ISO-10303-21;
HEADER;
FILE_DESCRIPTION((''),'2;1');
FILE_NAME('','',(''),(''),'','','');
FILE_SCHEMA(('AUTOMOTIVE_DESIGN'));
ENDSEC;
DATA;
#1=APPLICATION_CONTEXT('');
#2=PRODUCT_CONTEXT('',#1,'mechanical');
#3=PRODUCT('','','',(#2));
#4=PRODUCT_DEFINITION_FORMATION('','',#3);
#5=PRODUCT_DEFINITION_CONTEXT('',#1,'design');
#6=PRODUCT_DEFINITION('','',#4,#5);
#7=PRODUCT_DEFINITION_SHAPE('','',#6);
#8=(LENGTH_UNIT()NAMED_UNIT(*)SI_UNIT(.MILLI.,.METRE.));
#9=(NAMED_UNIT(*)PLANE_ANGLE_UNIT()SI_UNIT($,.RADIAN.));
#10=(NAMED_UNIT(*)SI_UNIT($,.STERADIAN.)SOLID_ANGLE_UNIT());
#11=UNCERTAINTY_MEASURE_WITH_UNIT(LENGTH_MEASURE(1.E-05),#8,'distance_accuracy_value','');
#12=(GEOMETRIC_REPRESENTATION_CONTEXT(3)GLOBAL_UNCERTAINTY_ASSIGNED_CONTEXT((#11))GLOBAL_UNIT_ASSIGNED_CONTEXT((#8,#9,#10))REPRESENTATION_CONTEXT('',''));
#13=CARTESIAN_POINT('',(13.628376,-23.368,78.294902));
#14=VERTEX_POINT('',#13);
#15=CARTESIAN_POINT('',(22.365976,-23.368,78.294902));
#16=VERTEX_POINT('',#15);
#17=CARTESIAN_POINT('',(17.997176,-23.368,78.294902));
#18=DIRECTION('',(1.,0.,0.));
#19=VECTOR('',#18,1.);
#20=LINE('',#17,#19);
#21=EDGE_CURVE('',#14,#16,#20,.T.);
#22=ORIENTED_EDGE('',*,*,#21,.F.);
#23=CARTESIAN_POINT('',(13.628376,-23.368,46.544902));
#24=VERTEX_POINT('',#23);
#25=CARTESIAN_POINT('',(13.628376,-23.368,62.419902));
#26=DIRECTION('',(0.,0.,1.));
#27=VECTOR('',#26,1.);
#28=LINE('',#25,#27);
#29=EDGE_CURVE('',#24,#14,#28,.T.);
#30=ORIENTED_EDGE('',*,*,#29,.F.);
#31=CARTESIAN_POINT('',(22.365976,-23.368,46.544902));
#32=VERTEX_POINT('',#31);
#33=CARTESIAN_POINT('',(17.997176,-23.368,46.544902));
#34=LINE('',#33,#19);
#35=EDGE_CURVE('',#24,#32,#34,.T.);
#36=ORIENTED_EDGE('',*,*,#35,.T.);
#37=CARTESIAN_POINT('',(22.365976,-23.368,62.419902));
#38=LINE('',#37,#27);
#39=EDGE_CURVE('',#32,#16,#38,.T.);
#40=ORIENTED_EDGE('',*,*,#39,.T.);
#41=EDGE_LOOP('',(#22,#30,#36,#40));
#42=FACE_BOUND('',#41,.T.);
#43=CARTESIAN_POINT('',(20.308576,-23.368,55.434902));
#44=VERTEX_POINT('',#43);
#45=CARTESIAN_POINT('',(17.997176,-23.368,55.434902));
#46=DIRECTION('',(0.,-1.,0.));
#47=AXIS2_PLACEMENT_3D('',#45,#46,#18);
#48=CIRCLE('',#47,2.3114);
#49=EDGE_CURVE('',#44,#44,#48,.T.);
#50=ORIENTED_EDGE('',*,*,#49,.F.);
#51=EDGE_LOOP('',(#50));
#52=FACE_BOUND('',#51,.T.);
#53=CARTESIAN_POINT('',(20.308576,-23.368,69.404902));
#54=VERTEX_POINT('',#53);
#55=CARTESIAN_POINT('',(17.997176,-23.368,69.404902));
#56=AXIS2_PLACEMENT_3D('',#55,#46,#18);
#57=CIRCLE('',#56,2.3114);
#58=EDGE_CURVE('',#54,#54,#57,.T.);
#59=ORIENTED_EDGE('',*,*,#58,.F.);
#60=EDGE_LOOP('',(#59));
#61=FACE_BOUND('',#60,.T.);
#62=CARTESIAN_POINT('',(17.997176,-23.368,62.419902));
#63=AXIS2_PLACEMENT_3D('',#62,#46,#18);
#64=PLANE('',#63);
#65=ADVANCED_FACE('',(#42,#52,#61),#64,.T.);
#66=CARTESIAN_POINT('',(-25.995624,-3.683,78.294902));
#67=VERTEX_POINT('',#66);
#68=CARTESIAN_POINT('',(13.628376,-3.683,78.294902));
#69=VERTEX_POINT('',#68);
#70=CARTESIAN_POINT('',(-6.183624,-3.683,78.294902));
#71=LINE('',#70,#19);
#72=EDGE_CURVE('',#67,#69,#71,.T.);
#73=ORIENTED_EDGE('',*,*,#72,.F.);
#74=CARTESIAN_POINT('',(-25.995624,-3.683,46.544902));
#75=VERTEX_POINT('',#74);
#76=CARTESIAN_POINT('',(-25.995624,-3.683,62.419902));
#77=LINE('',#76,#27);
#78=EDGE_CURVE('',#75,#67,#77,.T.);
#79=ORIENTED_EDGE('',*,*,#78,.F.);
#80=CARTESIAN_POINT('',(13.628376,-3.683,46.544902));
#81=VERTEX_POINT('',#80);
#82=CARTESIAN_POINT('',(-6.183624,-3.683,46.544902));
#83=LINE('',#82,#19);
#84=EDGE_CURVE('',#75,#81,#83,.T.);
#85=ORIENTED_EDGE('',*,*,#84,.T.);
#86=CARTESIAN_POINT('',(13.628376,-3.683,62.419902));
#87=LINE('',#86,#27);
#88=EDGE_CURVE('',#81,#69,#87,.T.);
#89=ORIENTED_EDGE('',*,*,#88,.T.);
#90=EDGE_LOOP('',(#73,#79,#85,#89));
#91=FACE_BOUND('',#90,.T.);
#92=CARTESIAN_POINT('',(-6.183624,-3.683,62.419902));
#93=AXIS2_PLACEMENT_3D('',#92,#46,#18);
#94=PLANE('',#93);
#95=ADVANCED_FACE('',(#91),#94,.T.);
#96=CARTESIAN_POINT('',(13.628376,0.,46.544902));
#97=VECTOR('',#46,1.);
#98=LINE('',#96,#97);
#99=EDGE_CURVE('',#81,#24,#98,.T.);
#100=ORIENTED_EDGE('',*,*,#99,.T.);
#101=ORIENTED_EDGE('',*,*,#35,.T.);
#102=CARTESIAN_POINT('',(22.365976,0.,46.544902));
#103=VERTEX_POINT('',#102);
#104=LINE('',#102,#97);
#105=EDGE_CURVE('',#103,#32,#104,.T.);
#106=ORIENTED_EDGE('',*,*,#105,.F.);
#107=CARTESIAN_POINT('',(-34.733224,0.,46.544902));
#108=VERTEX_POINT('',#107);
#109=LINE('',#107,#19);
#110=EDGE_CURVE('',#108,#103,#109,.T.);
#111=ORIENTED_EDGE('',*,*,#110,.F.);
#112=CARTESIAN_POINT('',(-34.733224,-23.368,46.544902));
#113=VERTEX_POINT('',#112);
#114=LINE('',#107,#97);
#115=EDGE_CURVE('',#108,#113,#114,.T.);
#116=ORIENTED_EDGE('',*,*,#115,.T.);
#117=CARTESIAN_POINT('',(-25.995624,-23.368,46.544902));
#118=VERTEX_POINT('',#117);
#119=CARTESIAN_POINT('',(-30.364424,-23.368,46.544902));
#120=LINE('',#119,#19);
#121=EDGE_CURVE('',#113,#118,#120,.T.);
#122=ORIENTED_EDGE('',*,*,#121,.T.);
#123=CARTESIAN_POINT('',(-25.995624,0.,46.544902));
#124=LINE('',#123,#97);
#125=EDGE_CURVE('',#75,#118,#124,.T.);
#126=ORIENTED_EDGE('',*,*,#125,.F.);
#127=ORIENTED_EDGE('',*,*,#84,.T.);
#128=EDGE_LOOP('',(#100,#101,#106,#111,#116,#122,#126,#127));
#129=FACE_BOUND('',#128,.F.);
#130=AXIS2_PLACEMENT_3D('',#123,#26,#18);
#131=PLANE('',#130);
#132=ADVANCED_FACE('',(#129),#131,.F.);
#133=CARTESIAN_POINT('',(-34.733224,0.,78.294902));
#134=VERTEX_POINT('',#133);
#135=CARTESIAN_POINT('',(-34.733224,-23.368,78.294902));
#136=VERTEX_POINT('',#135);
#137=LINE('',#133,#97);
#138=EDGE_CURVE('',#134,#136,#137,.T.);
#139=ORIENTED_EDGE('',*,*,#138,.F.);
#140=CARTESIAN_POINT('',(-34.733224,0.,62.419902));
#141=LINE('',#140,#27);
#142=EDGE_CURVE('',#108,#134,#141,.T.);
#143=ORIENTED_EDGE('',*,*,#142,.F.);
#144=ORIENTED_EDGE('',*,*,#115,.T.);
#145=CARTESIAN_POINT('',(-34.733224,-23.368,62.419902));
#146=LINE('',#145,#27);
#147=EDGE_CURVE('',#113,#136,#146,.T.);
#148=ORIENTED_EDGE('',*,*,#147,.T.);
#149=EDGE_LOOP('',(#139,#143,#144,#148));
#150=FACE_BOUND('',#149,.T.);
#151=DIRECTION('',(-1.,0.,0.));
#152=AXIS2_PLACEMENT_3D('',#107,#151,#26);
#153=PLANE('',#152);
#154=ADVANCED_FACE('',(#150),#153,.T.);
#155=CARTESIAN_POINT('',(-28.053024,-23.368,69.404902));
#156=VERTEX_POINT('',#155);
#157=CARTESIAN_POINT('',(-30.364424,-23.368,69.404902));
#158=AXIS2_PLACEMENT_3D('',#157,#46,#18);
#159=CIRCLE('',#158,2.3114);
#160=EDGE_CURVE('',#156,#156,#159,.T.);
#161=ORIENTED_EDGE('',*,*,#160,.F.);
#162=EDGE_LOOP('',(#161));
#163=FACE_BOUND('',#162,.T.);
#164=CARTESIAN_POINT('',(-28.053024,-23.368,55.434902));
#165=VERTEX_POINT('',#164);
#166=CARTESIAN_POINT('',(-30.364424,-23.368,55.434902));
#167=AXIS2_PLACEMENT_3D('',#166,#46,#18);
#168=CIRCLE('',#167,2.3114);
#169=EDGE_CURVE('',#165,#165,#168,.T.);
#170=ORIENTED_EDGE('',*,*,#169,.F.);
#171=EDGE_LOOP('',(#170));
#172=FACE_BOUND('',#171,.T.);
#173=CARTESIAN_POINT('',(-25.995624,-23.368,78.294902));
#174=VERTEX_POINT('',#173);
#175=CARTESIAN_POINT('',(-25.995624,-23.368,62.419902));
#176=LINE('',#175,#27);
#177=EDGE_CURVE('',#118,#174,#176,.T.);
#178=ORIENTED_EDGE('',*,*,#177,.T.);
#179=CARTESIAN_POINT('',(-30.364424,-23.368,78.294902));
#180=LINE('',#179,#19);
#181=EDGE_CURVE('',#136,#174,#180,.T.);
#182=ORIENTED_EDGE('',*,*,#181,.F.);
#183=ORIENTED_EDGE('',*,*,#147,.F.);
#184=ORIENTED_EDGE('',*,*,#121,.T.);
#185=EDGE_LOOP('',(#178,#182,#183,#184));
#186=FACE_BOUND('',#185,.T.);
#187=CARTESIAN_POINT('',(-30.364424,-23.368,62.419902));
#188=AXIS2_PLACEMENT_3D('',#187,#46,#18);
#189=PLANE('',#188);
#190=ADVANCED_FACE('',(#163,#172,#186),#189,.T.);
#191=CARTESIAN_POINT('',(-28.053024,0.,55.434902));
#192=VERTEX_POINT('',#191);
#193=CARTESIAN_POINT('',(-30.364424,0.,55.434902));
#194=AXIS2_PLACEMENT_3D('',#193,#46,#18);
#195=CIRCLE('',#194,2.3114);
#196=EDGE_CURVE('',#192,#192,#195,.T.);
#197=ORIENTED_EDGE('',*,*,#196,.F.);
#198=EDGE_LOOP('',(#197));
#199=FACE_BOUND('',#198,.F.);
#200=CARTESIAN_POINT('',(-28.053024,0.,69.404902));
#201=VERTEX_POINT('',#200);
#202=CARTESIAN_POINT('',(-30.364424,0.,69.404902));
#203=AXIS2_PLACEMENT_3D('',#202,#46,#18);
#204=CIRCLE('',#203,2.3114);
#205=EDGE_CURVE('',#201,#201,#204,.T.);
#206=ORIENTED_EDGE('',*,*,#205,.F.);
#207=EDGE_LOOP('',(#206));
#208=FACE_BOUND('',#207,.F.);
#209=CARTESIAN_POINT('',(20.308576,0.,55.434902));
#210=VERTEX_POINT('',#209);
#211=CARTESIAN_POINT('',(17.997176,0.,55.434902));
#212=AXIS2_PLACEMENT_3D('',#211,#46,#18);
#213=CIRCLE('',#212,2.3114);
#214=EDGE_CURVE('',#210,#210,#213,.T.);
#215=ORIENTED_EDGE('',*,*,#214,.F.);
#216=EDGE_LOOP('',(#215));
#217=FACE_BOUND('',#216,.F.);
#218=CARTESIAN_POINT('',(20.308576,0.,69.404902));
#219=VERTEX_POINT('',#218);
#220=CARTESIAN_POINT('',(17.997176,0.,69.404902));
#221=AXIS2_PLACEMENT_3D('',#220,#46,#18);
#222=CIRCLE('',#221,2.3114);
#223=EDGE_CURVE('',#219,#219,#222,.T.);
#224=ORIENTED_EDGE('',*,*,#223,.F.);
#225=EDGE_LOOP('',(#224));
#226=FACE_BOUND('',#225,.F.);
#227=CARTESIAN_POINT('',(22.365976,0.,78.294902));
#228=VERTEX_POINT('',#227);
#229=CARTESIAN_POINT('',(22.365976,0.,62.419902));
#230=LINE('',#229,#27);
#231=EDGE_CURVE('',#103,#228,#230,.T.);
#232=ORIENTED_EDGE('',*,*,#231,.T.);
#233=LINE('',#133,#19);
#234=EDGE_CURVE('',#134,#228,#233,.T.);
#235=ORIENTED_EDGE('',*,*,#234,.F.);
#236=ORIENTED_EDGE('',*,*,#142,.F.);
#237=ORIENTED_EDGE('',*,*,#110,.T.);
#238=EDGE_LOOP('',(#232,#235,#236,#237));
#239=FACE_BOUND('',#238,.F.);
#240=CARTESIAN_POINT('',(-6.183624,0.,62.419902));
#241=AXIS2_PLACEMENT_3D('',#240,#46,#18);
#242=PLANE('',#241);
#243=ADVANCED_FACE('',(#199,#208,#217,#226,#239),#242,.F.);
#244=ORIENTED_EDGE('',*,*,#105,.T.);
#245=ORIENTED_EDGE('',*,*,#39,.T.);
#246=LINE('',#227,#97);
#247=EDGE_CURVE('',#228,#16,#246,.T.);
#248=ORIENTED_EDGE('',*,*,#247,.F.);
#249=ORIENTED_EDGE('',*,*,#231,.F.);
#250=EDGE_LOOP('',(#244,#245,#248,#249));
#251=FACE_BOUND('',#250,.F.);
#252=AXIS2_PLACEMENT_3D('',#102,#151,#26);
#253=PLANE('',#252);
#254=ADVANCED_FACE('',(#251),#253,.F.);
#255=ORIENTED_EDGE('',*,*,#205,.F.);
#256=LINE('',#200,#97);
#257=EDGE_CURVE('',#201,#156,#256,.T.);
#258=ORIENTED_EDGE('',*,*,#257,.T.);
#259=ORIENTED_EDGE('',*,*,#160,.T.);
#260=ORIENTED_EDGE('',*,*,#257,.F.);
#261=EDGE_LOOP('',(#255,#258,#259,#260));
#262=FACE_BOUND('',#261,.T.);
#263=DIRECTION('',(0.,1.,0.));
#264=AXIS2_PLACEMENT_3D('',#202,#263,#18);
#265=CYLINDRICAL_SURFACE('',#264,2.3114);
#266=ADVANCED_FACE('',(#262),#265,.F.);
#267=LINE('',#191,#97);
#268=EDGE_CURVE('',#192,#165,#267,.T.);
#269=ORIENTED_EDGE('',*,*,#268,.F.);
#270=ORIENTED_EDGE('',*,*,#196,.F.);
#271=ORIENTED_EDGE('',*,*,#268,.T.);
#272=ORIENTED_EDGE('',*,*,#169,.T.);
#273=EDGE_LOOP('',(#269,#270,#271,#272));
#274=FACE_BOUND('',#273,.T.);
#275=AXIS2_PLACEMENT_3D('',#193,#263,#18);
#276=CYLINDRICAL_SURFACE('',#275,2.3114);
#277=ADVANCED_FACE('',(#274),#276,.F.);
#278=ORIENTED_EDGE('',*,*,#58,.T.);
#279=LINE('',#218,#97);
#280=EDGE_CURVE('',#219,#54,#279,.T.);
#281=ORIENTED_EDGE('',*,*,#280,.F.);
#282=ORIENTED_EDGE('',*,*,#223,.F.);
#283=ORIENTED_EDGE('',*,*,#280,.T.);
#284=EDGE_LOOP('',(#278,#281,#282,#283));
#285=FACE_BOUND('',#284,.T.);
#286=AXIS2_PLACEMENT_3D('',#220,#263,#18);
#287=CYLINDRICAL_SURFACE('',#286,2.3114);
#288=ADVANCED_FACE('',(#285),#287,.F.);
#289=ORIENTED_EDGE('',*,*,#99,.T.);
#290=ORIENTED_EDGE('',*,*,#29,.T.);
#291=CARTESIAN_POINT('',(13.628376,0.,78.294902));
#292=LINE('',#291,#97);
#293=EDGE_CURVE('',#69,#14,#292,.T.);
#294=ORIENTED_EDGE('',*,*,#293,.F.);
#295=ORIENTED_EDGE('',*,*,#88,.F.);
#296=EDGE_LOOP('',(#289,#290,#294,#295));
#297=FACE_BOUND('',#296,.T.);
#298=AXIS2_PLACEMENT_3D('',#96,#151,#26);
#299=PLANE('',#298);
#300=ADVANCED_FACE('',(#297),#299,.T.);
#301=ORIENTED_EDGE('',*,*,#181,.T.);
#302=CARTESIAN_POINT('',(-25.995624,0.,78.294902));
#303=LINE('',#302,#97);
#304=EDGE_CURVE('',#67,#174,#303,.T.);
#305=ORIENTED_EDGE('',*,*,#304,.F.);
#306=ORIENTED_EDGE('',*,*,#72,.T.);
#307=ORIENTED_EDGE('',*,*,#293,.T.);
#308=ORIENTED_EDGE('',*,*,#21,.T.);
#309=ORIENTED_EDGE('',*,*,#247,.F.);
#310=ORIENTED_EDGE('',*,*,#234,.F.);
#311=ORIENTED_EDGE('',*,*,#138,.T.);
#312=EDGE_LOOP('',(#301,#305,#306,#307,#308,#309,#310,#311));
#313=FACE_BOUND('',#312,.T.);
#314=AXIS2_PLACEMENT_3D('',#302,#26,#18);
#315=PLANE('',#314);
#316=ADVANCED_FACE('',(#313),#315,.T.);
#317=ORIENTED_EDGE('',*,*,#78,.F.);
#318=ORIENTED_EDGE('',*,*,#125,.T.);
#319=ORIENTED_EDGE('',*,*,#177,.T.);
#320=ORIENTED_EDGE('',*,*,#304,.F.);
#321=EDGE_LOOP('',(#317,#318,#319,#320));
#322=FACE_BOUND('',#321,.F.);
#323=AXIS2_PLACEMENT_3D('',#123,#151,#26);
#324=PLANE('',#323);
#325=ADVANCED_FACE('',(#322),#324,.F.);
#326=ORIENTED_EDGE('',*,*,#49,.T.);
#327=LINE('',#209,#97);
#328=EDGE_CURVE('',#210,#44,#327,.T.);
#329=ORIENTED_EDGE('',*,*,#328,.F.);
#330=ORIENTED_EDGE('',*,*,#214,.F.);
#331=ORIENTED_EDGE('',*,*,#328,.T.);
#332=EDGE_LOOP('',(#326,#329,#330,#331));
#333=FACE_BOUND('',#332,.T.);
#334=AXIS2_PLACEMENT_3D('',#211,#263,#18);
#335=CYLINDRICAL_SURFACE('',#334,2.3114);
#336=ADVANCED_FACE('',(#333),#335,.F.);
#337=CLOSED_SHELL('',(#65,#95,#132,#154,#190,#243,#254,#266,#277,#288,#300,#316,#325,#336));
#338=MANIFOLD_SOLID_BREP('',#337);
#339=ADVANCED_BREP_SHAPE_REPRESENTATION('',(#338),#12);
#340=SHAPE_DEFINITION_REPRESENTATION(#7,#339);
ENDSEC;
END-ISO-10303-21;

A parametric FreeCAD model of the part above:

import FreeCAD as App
import Part
import Sketcher

V = App.Vector
Q = App.Units.Quantity


def add_polygon(sketch, points):
    """Adds a closed chain of lines whose ends are joined by coincident constraints."""
    first, n = sketch.GeometryCount, len(points)
    for a, b in zip(points, points[1:] + points[:1]):
        sketch.addGeometry(Part.LineSegment(App.Vector(*a, 0), App.Vector(*b, 0)), False)
    for i in range(n):
        sketch.addConstraint(Sketcher.Constraint("Coincident", first + i, 2, first + (i + 1) % n, 1))

doc = App.newDocument("Part")
body = doc.addObject("PartDesign::Body", "Body")
body.AllowCompound = True

# Sketch on XZ plane
sketch1 = doc.addObject("Sketcher::SketchObject", "Sketch")
body.addObject(sketch1)
sketch1.AttachmentSupport = (doc.XZ_Plane, [""])
sketch1.MapMode = "FlatFace"
add_polygon(sketch1, [(-34.733224, 78.294902), (-34.733224, 46.544902), (-25.995624, 46.544902), (-25.995624, 78.294902)])  # lines 0-3
sketch1.addGeometry(Part.Circle(V(-30.364424, 55.434902, 0), V(0, 0, 1), 2.3114), False)  # 4
sketch1.addGeometry(Part.Circle(V(-30.364424, 69.404902, 0), V(0, 0, 1), 2.3114), False)  # 5
add_polygon(sketch1, [(13.628376, 78.294902), (13.628376, 46.544902), (22.365976, 46.544902), (22.365976, 78.294902)])  # lines 6-9
sketch1.addGeometry(Part.Circle(V(17.997176, 55.434902, 0), V(0, 0, 1), 2.3114), False)  # 10
sketch1.addGeometry(Part.Circle(V(17.997176, 69.404902, 0), V(0, 0, 1), 2.3114), False)  # 11
sketch1.addConstraint([
    Sketcher.Constraint("Vertical", 0),
    Sketcher.Constraint("Horizontal", 1),
    Sketcher.Constraint("Vertical", 2),
    Sketcher.Constraint("Horizontal", 3),
    Sketcher.Constraint("Vertical", 6),
    Sketcher.Constraint("Horizontal", 7),
    Sketcher.Constraint("Vertical", 8),
    Sketcher.Constraint("Horizontal", 9),
    Sketcher.Constraint("Equal", 4, 5),
    Sketcher.Constraint("Equal", 5, 10),
    Sketcher.Constraint("Equal", 10, 11),
    Sketcher.Constraint("Horizontal", 4, 3, 10, 3),
    Sketcher.Constraint("Horizontal", 5, 3, 11, 3),
    Sketcher.Constraint("Horizontal", 1, 2, 6, 2),
    Sketcher.Constraint("Horizontal", 3, 2, 8, 2),
    Sketcher.Constraint("Vertical", 4, 3, 5, 3),
    Sketcher.Constraint("Vertical", 10, 3, 11, 3),
    Sketcher.Constraint("Equal", 3, 7),
    Sketcher.Constraint("Diameter", 4, Q("0.182 in")),
    Sketcher.Constraint("DistanceY", 0, 2, 0, 1, Q("1.25 in")),
    Sketcher.Constraint("DistanceY", 0, 2, 5, 3, Q("0.9 in")),
    Sketcher.Constraint("DistanceY", 4, 3, 2, 2, Q("0.9 in")),
    Sketcher.Constraint("DistanceX", 1, 1, 1, 2, Q("0.344 in")),
    Sketcher.Constraint("DistanceX", 1, 2, 6, 2, Q("1.56 in")),
    Sketcher.Constraint("DistanceX", 4, 3, 10, 3, Q("1.904 in")),
    Sketcher.Constraint("DistanceX", 0, 2, 4, 3, Q("0.172 in")),
    Sketcher.Constraint("DistanceY", -1, 1, 2, 2, 78.294902),
    Sketcher.Constraint("DistanceX", 4, 3, -1, 1, 30.364424),
])
pad1 = doc.addObject("PartDesign::Pad", "Pad")
body.addObject(pad1)
pad1.Profile = sketch1
pad1.Length = Q("0.92 in")

# Sketch on XZ plane
sketch2 = doc.addObject("Sketcher::SketchObject", "Sketch001")
body.addObject(sketch2)
sketch2.AttachmentSupport = (doc.XZ_Plane, [""])
sketch2.MapMode = "FlatFace"
add_polygon(sketch2, [(-25.995624, 78.294902), (-25.995624, 46.544902), (13.628376, 46.544902), (13.628376, 78.294902)])  # lines 0-3
sketch2.addConstraint([
    Sketcher.Constraint("Vertical", 0),
    Sketcher.Constraint("Horizontal", 1),
    Sketcher.Constraint("Vertical", 2),
    Sketcher.Constraint("Horizontal", 3),
    Sketcher.Constraint("DistanceX", 1, 1, 1, 2, Q("1.56 in")),
    Sketcher.Constraint("DistanceY", 0, 2, 0, 1, Q("1.25 in")),
    Sketcher.Constraint("DistanceY", -1, 1, 2, 2, 78.294902),
    Sketcher.Constraint("DistanceX", 0, 2, -1, 1, 25.995624),
])
pad2 = doc.addObject("PartDesign::Pad", "Pad001")
body.addObject(pad2)
pad2.Profile = sketch2
pad2.Length = Q("0.145 in")

doc.recompute()
